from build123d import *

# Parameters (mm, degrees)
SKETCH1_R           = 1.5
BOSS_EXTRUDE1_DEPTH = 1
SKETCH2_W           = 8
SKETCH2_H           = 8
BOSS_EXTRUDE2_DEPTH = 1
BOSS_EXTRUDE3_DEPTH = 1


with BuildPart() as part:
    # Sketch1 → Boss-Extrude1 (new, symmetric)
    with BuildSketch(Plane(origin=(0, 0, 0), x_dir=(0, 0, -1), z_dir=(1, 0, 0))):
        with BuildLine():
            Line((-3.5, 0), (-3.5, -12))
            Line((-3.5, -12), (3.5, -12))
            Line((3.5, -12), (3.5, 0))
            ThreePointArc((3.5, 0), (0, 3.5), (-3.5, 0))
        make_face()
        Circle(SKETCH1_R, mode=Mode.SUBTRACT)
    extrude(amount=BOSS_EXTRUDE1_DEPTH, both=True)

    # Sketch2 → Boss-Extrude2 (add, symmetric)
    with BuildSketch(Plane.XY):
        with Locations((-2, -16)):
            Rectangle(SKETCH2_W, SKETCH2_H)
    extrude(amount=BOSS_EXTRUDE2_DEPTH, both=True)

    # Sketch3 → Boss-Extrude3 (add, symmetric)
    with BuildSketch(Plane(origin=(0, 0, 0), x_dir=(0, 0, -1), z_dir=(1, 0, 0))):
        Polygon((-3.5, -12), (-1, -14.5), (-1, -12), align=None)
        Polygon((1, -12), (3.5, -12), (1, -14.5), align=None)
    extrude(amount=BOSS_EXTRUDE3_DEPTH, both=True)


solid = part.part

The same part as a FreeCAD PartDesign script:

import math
import FreeCAD as App
import Part
import Sketcher

V = App.Vector


def add_polygon(sketch, points):
    """Adds a closed chain of lines whose ends are joined by coincident constraints."""
    first, n = sketch.GeometryCount, len(points)
    for a, b in zip(points, points[1:] + points[:1]):
        sketch.addGeometry(Part.LineSegment(App.Vector(*a, 0), App.Vector(*b, 0)), False)
    for i in range(n):
        sketch.addConstraint(Sketcher.Constraint("Coincident", first + i, 2, first + (i + 1) % n, 1))

doc = App.newDocument("Part")
body = doc.addObject("PartDesign::Body", "Body")

# Sketch on YZ plane
sketch1 = doc.addObject("Sketcher::SketchObject", "Sketch")
body.addObject(sketch1)
sketch1.AttachmentSupport = (doc.YZ_Plane, [""])
sketch1.MapMode = "FlatFace"
sketch1.addGeometry(Part.LineSegment(V(0, 3.5, 0), V(-12, 3.5, 0)), False)
sketch1.addGeometry(Part.LineSegment(V(-12, 3.5, 0), V(-12, -3.5, 0)), False)
sketch1.addGeometry(Part.LineSegment(V(-12, -3.5, 0), V(0, -3.5, 0)), False)
sketch1.addGeometry(Part.ArcOfCircle(Part.Circle(V(0, 0, 0), V(0, 0, 1), 3.5), math.radians(-90), math.radians(90)), False)
sketch1.addGeometry(Part.Circle(V(0, 0, 0), V(0, 0, 1), 1.5), False)
sketch1.addConstraint(Sketcher.Constraint("Coincident", 0, 2, 1, 1))
sketch1.addConstraint(Sketcher.Constraint("Coincident", 1, 2, 2, 1))
sketch1.addConstraint(Sketcher.Constraint("Tangent", 2, 2, 3, 1))
sketch1.addConstraint(Sketcher.Constraint("Tangent", 3, 2, 0, 1))
sketch1.addConstraint(Sketcher.Constraint("Horizontal", 0))
sketch1.addConstraint(Sketcher.Constraint("Vertical", 1))
sketch1.addConstraint(Sketcher.Constraint("Horizontal", 2))
sketch1.addConstraint(Sketcher.Constraint("Coincident", 3, 3, -1, 1))
sketch1.addConstraint(Sketcher.Constraint("Coincident", 4, 3, -1, 1))
sketch1.addConstraint(Sketcher.Constraint("Diameter", 4, 3.0))
sketch1.addConstraint(Sketcher.Constraint("Radius", 3, 3.5))
sketch1.addConstraint(Sketcher.Constraint("DistanceX", 0, 2, 0, 1, 12.0))
pad1 = doc.addObject("PartDesign::Pad", "Pad")
body.addObject(pad1)
pad1.Profile = sketch1
pad1.Length = 2
pad1.Midplane = True

# Sketch on XY plane
sketch2 = doc.addObject("Sketcher::SketchObject", "Sketch001")
body.addObject(sketch2)
sketch2.AttachmentSupport = (doc.XY_Plane, [""])
sketch2.MapMode = "FlatFace"
add_polygon(sketch2, [(-6, -12), (-6, -20), (2, -20), (2, -12)])  # lines 0-3
sketch2.addConstraint(Sketcher.Constraint("Vertical", 0))
sketch2.addConstraint(Sketcher.Constraint("Horizontal", 1))
sketch2.addConstraint(Sketcher.Constraint("Vertical", 2))
sketch2.addConstraint(Sketcher.Constraint("Horizontal", 3))
sketch2.addConstraint(Sketcher.Constraint("Equal", 3, 0))
sketch2.addConstraint(Sketcher.Constraint("DistanceX", 1, 1, 1, 2, 8.0))
sketch2.addConstraint(Sketcher.Constraint("DistanceX", 0, 2, -1, 1, 6.0))
sketch2.addConstraint(Sketcher.Constraint("DistanceY", 0, 2, -1, 1, 20.0))
pad2 = doc.addObject("PartDesign::Pad", "Pad001")
body.addObject(pad2)
pad2.Profile = sketch2
pad2.Length = 2
pad2.Midplane = True

# Sketch on YZ plane
sketch3 = doc.addObject("Sketcher::SketchObject", "Sketch002")
body.addObject(sketch3)
sketch3.AttachmentSupport = (doc.YZ_Plane, [""])
sketch3.MapMode = "FlatFace"
add_polygon(sketch3, [(-12, 3.5), (-14.5, 1), (-12, 1)])  # lines 0-2
add_polygon(sketch3, [(-12, -3.5), (-12, -1), (-14.5, -1)])  # lines 3-5
sketch3.addConstraint(Sketcher.Constraint("Horizontal", 1))
sketch3.addConstraint(Sketcher.Constraint("Vertical", 2))
sketch3.addConstraint(Sketcher.Constraint("Vertical", 3))
sketch3.addConstraint(Sketcher.Constraint("Horizontal", 4))
sketch3.addConstraint(Sketcher.Constraint("Symmetric", 1, 2, 3, 2, -1))
sketch3.addConstraint(Sketcher.Constraint("Perpendicular", 0, 5))
sketch3.addConstraint(Sketcher.Constraint("Vertical", 0, 2, 4, 2))
sketch3.addConstraint(Sketcher.Constraint("Equal", 4, 2))
sketch3.addConstraint(Sketcher.Constraint("DistanceX", 1, 1, 1, 2, 2.5))
sketch3.addConstraint(Sketcher.Constraint("DistanceY", -1, 1, 0, 2, 1.0))
sketch3.addConstraint(Sketcher.Constraint("DistanceX", 1, 2, -1, 1, 12.0))
pad3 = doc.addObject("PartDesign::Pad", "Pad002")
body.addObject(pad3)
pad3.Profile = sketch3
pad3.Length = 2
pad3.Midplane = True

doc.recompute()
